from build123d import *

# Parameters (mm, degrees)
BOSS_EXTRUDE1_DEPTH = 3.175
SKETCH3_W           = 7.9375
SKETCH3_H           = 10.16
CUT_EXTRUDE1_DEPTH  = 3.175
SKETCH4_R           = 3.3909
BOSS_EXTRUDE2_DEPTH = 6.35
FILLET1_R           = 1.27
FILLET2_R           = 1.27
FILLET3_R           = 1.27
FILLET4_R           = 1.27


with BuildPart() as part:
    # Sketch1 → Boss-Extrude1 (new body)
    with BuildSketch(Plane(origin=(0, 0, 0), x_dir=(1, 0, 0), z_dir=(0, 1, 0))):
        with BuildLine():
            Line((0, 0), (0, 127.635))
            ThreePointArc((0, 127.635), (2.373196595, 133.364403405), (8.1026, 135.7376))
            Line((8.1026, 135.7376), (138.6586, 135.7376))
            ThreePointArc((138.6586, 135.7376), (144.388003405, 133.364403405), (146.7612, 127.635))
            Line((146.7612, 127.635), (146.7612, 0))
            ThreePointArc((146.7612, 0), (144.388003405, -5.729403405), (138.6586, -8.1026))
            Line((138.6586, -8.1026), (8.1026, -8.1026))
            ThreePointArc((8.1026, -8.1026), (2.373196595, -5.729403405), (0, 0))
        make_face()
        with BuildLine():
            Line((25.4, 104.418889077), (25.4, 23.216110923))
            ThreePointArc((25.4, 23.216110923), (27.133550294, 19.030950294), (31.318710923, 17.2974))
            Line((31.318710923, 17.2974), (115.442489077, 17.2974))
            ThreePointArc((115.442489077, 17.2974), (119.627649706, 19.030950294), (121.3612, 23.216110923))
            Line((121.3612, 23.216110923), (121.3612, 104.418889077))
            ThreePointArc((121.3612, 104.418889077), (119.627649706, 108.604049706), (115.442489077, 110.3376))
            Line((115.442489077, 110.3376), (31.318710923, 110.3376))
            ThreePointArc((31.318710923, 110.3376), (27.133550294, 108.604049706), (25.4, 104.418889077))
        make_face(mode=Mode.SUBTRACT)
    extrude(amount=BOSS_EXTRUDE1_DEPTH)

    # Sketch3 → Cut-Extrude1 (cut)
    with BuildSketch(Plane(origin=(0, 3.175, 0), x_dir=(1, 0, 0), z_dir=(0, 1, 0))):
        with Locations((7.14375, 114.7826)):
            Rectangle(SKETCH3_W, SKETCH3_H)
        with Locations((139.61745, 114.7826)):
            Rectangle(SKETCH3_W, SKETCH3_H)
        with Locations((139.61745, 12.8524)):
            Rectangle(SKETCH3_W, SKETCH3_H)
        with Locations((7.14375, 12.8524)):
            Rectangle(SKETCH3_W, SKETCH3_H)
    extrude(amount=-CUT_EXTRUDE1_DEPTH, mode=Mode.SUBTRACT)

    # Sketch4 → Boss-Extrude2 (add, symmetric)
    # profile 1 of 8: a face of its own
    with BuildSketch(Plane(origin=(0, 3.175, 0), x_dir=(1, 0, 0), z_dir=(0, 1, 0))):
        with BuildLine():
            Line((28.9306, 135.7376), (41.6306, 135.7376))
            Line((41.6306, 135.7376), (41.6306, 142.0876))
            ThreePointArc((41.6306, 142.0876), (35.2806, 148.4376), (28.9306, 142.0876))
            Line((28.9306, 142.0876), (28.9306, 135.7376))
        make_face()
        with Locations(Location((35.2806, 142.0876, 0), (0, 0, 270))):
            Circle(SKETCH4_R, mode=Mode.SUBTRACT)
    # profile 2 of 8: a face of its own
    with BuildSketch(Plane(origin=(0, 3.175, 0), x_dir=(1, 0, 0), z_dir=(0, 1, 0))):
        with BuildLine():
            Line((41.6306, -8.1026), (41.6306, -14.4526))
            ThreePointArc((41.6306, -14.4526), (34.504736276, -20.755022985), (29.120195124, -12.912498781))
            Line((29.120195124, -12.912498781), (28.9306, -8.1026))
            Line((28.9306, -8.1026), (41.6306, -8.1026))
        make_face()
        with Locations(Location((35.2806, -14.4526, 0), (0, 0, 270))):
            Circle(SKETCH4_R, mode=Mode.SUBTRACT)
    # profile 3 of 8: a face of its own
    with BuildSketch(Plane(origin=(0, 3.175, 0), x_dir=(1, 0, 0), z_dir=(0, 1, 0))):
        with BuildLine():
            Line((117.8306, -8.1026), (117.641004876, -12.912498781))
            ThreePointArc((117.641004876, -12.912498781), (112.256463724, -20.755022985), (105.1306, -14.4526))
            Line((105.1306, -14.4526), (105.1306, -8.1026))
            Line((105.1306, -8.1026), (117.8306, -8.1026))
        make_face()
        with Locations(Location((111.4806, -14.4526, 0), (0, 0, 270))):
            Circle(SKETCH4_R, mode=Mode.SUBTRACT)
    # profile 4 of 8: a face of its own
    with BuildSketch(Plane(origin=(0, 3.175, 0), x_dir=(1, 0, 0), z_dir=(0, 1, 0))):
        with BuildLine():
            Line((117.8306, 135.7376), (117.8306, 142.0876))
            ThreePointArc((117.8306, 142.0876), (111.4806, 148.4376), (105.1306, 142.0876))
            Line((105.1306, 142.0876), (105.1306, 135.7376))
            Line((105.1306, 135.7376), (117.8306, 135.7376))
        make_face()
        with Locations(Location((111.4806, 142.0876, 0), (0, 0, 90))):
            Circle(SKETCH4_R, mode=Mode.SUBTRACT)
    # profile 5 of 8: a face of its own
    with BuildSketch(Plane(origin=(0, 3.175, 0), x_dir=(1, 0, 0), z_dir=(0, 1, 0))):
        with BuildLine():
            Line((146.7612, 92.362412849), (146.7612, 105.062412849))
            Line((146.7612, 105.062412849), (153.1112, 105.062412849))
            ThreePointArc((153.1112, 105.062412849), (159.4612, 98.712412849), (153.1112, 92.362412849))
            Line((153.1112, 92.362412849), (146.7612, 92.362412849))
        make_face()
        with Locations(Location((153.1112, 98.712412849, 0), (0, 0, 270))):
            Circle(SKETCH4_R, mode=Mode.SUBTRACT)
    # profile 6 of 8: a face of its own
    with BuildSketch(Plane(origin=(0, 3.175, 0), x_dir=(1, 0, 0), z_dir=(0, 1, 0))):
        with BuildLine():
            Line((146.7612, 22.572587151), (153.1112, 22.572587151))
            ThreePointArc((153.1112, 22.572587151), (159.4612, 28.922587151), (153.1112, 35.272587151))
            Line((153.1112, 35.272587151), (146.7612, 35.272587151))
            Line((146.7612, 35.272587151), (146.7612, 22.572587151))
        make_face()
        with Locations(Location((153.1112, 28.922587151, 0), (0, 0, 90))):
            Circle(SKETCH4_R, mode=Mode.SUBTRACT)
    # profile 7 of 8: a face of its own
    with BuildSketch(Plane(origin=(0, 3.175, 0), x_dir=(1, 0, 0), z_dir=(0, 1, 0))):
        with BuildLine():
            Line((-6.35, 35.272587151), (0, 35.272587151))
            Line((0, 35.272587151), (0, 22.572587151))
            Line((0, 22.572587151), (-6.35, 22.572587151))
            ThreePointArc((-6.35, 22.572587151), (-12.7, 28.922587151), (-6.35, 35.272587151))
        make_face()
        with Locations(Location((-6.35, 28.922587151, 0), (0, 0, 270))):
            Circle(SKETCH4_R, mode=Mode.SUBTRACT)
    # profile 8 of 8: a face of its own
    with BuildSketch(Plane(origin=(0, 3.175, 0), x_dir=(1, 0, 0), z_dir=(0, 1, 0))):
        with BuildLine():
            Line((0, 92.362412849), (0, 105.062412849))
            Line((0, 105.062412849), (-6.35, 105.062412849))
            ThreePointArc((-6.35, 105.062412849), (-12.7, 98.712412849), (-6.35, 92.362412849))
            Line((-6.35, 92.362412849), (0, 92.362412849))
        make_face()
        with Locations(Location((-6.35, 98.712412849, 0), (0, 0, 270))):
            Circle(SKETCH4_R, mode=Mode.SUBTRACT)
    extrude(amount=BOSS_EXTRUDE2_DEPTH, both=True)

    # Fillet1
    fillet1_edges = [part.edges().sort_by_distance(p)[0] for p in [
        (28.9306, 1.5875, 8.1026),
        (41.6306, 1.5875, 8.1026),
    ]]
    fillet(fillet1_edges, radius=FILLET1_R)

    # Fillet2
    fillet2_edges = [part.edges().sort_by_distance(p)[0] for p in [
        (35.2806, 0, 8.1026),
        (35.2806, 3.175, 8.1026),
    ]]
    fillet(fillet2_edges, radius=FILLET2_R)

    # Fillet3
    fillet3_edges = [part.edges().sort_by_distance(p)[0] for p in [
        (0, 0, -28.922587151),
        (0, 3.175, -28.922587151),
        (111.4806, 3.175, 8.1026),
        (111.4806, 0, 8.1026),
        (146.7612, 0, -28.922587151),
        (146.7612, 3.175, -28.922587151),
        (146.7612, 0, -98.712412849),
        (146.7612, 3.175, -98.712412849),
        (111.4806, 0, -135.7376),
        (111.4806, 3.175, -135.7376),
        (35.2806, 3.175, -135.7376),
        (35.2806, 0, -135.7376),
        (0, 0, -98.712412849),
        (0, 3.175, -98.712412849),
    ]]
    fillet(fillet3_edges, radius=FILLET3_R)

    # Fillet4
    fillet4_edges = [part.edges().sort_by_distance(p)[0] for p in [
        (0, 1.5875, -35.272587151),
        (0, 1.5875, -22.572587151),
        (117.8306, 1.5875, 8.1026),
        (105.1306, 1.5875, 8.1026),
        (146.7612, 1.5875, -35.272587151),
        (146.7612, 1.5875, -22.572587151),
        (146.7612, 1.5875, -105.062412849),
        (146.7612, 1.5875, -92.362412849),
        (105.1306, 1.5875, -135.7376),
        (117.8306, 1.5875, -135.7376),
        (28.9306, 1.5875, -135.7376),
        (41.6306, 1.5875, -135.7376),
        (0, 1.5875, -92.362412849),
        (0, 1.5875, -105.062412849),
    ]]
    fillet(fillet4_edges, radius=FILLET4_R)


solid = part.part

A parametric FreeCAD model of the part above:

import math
import FreeCAD as App
import Part
import Sketcher
from FreeCAD import Vector
Q = App.Units.Quantity


def edges_at(feature, points):
    """Names of the edges that pass closest to the given points."""
    edges = feature.Shape.Edges
    near = lambda p: min(range(len(edges)), key=lambda i: edges[i].distToShape(Part.Vertex(*p))[0])
    return sorted({f"Edge{near(p) + 1}" for p in points})

doc = App.newDocument("Part")
params = doc.addObject("Spreadsheet::Sheet", "Params")
for row, (alias, value) in enumerate([
    ("sketch1_radius", "0.319 in"),
    ("sketch1_width", "5.14 in"),
    ("sketch1_height", "5.025 in"),
    ("pad1_length", "0.125 in"),
    ("sketch2_height", "0.4 in"),
    ("sketch2_width", "0.3125 in"),
    ("pocket1_length", "0.125 in"),
    ("sketch3_radius", "0.25 in"),
    ("sketch3_diameter", "0.267 in"),
    ("sketch3_width", "0.25 in"),
    ("pad2_length", "0.5 in"),
    ("fillet_radius", "0.05 in"),
    ("fillet2_radius", "0.05 in"),
    ("fillet3_radius", "0.05 in"),
    ("fillet4_radius", "0.05 in"),
], start=1):
    params.set(f"A{row}", alias)
    params.set(f"B{row}", "=" + value)
    params.setAlias(f"B{row}", alias)

body = doc.addObject("PartDesign::Body", "Body")

# Sketch on XZ plane
sketch1 = doc.addObject("Sketcher::SketchObject", "Sketch")
body.addObject(sketch1)
sketch1.AttachmentSupport = (doc.XZ_Plane, [""])
sketch1.MapMode = "FlatFace"
sketch1.addGeometry([
    Part.LineSegment(Vector(0, -128, 0), Vector(0, 0, 0)),  # 0
    Part.ArcOfCircle(Part.Circle(Vector(8, 0, 0), Vector(0, 0, 1), 8), math.radians(90), math.radians(180)),  # 1
    Part.LineSegment(Vector(8, 8, 0), Vector(139, 8, 0)),  # 2
    Part.ArcOfCircle(Part.Circle(Vector(139, 0, 0), Vector(0, 0, 1), 8), math.radians(0), math.radians(90)),  # 3
    Part.LineSegment(Vector(147, 0, 0), Vector(147, -128, 0)),  # 4
    Part.ArcOfCircle(Part.Circle(Vector(139, -128, 0), Vector(0, 0, 1), 8), math.radians(-90), math.radians(0)),  # 5
    Part.LineSegment(Vector(139, -136, 0), Vector(8, -136, 0)),  # 6
    Part.ArcOfCircle(Part.Circle(Vector(8, -128, 0), Vector(0, 0, 1), 8), math.radians(-180), math.radians(-90)),  # 7
    Part.ArcOfCircle(Part.Circle(Vector(31, -104, 0), Vector(0, 0, 1), 6), math.radians(-180), math.radians(-90)),  # 8
    Part.LineSegment(Vector(31, -110, 0), Vector(115, -110, 0)),  # 9
    Part.ArcOfCircle(Part.Circle(Vector(115, -104, 0), Vector(0, 0, 1), 6), math.radians(-90), math.radians(0)),  # 10
    Part.LineSegment(Vector(121, -104, 0), Vector(121, -23, 0)),  # 11
    Part.ArcOfCircle(Part.Circle(Vector(115, -23, 0), Vector(0, 0, 1), 6), math.radians(0), math.radians(90)),  # 12
    Part.LineSegment(Vector(115, -17, 0), Vector(31, -17, 0)),  # 13
    Part.ArcOfCircle(Part.Circle(Vector(31, -23, 0), Vector(0, 0, 1), 6), math.radians(90), math.radians(180)),  # 14
    Part.LineSegment(Vector(25, -23, 0), Vector(25, -104, 0)),  # 15
], False)
sketch1.addConstraint([
    Sketcher.Constraint("Tangent", 0, 2, 1, 2),
    Sketcher.Constraint("Tangent", 1, 1, 2, 1),
    Sketcher.Constraint("Tangent", 2, 2, 3, 2),
    Sketcher.Constraint("Tangent", 3, 1, 4, 1),
    Sketcher.Constraint("Tangent", 4, 2, 5, 2),
    Sketcher.Constraint("Tangent", 5, 1, 6, 1),
    Sketcher.Constraint("Tangent", 6, 2, 7, 2),
    Sketcher.Constraint("Tangent", 7, 1, 0, 1),
    Sketcher.Constraint("Tangent", 8, 2, 9, 1),
    Sketcher.Constraint("Tangent", 9, 2, 10, 1),
    Sketcher.Constraint("Tangent", 10, 2, 11, 1),
    Sketcher.Constraint("Tangent", 11, 2, 12, 1),
    Sketcher.Constraint("Tangent", 12, 2, 13, 1),
    Sketcher.Constraint("Tangent", 13, 2, 14, 1),
    Sketcher.Constraint("Tangent", 14, 2, 15, 1),
    Sketcher.Constraint("Tangent", 15, 2, 8, 1),
    Sketcher.Constraint("Vertical", 0),
    Sketcher.Constraint("Horizontal", 2),
    Sketcher.Constraint("Vertical", 4),
    Sketcher.Constraint("Horizontal", 6),
    Sketcher.Constraint("Horizontal", 9),
    Sketcher.Constraint("Vertical", 11),
    Sketcher.Constraint("Horizontal", 13),
    Sketcher.Constraint("Vertical", 15),
    Sketcher.Constraint("Coincident", 0, 2, -1, 1),
    Sketcher.Constraint("Equal", 1, 3),
    Sketcher.Constraint("Equal", 3, 5),
    Sketcher.Constraint("Equal", 5, 7),
    Sketcher.Constraint("Equal", 8, 10),
    Sketcher.Constraint("Equal", 10, 12),
    Sketcher.Constraint("Equal", 12, 14),
    Sketcher.Constraint("DistanceX", -1, 1, 14, 2, Q("1 in")),
    Sketcher.Constraint("Radius", 1, Q("0.319 in")),
    Sketcher.Constraint("DistanceY", 6, 2, 8, 2, Q("1 in")),
    Sketcher.Constraint("DistanceX", 10, 2, 4, 2, Q("1 in")),
    Sketcher.Constraint("DistanceY", 12, 2, 2, 2, Q("1 in")),
    Sketcher.Constraint("DistanceX", 2, 1, 2, 2, Q("5.14 in")),
    Sketcher.Constraint("DistanceY", 0, 1, 0, 2, Q("5.025 in")),
    Sketcher.Constraint("Radius", 8, 5.918711),
])
sketch1.setExpression("Constraints[32]", "Params.sketch1_radius")
sketch1.setExpression("Constraints[36]", "Params.sketch1_width")
sketch1.setExpression("Constraints[37]", "Params.sketch1_height")
pad1 = doc.addObject("PartDesign::Pad", "Pad")
body.addObject(pad1)
pad1.Profile = sketch1
pad1.setExpression("Length", "Params.pad1_length")
pad1.Reversed = True

# Sketch on XZ plane
sketch2 = doc.addObject("Sketcher::SketchObject", "Sketch001")
body.addObject(sketch2)
sketch2.AttachmentSupport = (doc.XZ_Plane, [""])
sketch2.MapMode = "FlatFace"
sketch2.AttachmentOffset = App.Placement(Vector(0, 0, -0.125 * 25.4), App.Rotation())
sketch2.addGeometry([
    Part.LineSegment(Vector(3, -120, 0), Vector(3, -110, 0)),  # 0
    Part.LineSegment(Vector(3, -110, 0), Vector(11, -110, 0)),  # 1
    Part.LineSegment(Vector(11, -110, 0), Vector(11, -120, 0)),  # 2
    Part.LineSegment(Vector(11, -120, 0), Vector(3, -120, 0)),  # 3
    Part.LineSegment(Vector(136, -120, 0), Vector(136, -110, 0)),  # 4
    Part.LineSegment(Vector(136, -110, 0), Vector(144, -110, 0)),  # 5
    Part.LineSegment(Vector(144, -110, 0), Vector(144, -120, 0)),  # 6
    Part.LineSegment(Vector(144, -120, 0), Vector(136, -120, 0)),  # 7
    Part.LineSegment(Vector(136, -18, 0), Vector(136, -8, 0)),  # 8
    Part.LineSegment(Vector(136, -8, 0), Vector(144, -8, 0)),  # 9
    Part.LineSegment(Vector(144, -8, 0), Vector(144, -18, 0)),  # 10
    Part.LineSegment(Vector(144, -18, 0), Vector(136, -18, 0)),  # 11
    Part.LineSegment(Vector(3, -18, 0), Vector(3, -8, 0)),  # 12
    Part.LineSegment(Vector(3, -8, 0), Vector(11, -8, 0)),  # 13
    Part.LineSegment(Vector(11, -8, 0), Vector(11, -18, 0)),  # 14
    Part.LineSegment(Vector(11, -18, 0), Vector(3, -18, 0)),  # 15
], False)
sketch2.addConstraint([
    Sketcher.Constraint("Coincident", 0, 2, 1, 1),
    Sketcher.Constraint("Coincident", 1, 2, 2, 1),
    Sketcher.Constraint("Coincident", 2, 2, 3, 1),
    Sketcher.Constraint("Coincident", 3, 2, 0, 1),
    Sketcher.Constraint("Coincident", 4, 2, 5, 1),
    Sketcher.Constraint("Coincident", 5, 2, 6, 1),
    Sketcher.Constraint("Coincident", 6, 2, 7, 1),
    Sketcher.Constraint("Coincident", 7, 2, 4, 1),
    Sketcher.Constraint("Coincident", 8, 2, 9, 1),
    Sketcher.Constraint("Coincident", 9, 2, 10, 1),
    Sketcher.Constraint("Coincident", 10, 2, 11, 1),
    Sketcher.Constraint("Coincident", 11, 2, 8, 1),
    Sketcher.Constraint("Coincident", 12, 2, 13, 1),
    Sketcher.Constraint("Coincident", 13, 2, 14, 1),
    Sketcher.Constraint("Coincident", 14, 2, 15, 1),
    Sketcher.Constraint("Coincident", 15, 2, 12, 1),
    Sketcher.Constraint("Vertical", 0),
    Sketcher.Constraint("Horizontal", 1),
    Sketcher.Constraint("Vertical", 2),
    Sketcher.Constraint("Horizontal", 3),
    Sketcher.Constraint("Vertical", 4),
    Sketcher.Constraint("Horizontal", 5),
    Sketcher.Constraint("Vertical", 6),
    Sketcher.Constraint("Horizontal", 7),
    Sketcher.Constraint("Vertical", 8),
    Sketcher.Constraint("Horizontal", 9),
    Sketcher.Constraint("Vertical", 10),
    Sketcher.Constraint("Horizontal", 11),
    Sketcher.Constraint("Vertical", 12),
    Sketcher.Constraint("Horizontal", 13),
    Sketcher.Constraint("Vertical", 14),
    Sketcher.Constraint("Horizontal", 15),
    Sketcher.Constraint("Horizontal", 1, 2, 4, 2),
    Sketcher.Constraint("Horizontal", 3, 2, 6, 2),
    Sketcher.Constraint("Horizontal", 9, 2, 12, 2),
    Sketcher.Constraint("Horizontal", 11, 2, 14, 2),
    Sketcher.Constraint("Vertical", 7, 2, 8, 2),
    Sketcher.Constraint("Vertical", 6, 2, 9, 2),
    Sketcher.Constraint("Vertical", 3, 2, 12, 2),
    Sketcher.Constraint("Vertical", 2, 2, 13, 2),
    Sketcher.Constraint("Equal", 3, 5),
    Sketcher.Constraint("Equal", 6, 8),
    Sketcher.Constraint("DistanceY", 0, 1, 0, 2, Q("0.4 in")),
    Sketcher.Constraint("DistanceX", 1, 1, 1, 2, Q("0.3125 in")),
    Sketcher.Constraint("DistanceX", -1, 1, 0, 2, Q("0.125 in")),
    Sketcher.Constraint("DistanceY", 0, 2, -1, 1, Q("4.319 in")),
    Sketcher.Constraint("DistanceX", -1, 1, 5, 2, Q("5.653 in")),
    Sketcher.Constraint("DistanceY", 8, 2, -1, 1, Q("0.306 in")),
])
sketch2.setExpression("Constraints[42]", "Params.sketch2_height")
sketch2.setExpression("Constraints[43]", "Params.sketch2_width")
pocket1 = doc.addObject("PartDesign::Pocket", "Pocket")
body.addObject(pocket1)
pocket1.Profile = sketch2
pocket1.setExpression("Length", "Params.pocket1_length")
pocket1.Reversed = True

# Sketch on XZ plane
sketch3 = doc.addObject("Sketcher::SketchObject", "Sketch002")
body.addObject(sketch3)
sketch3.AttachmentSupport = (doc.XZ_Plane, [""])
sketch3.MapMode = "FlatFace"
sketch3.AttachmentOffset = App.Placement(Vector(0, 0, -0.125 * 25.4), App.Rotation())
sketch3.addGeometry([
    Part.LineSegment(Vector(28.9, -135.7, 0), Vector(41.6, -135.7, 0)),  # 0
    Part.LineSegment(Vector(41.6, -135.7, 0), Vector(41.6, -142.1, 0)),  # 1
    Part.ArcOfCircle(Part.Circle(Vector(35.3, -142.1, 0), Vector(0, 0, 1), 6.3), math.radians(180), math.radians(360)),  # 2
    Part.LineSegment(Vector(28.9, -142.1, 0), Vector(28.9, -135.7, 0)),  # 3
    Part.Circle(Vector(35.3, -142.1, 0), Vector(0, 0, 1), 3.4),  # 4
    Part.LineSegment(Vector(41.6, 14.5, 0), Vector(41.6, 8.1, 0)),  # 5
    Part.LineSegment(Vector(41.6, 8.1, 0), Vector(28.9, 8.1, 0)),  # 6
    Part.LineSegment(Vector(28.9, 8.1, 0), Vector(29.1, 12.9, 0)),  # 7
    Part.ArcOfCircle(Part.Circle(Vector(35.3, 14.5, 0), Vector(0, 0, 1), 6.3), math.radians(0), math.radians(194)),  # 8
    Part.Circle(Vector(35.3, 14.5, 0), Vector(0, 0, 1), 3.4),  # 9
    Part.LineSegment(Vector(117.6, 12.9, 0), Vector(117.8, 8.1, 0)),  # 10
    Part.LineSegment(Vector(117.8, 8.1, 0), Vector(105.1, 8.1, 0)),  # 11
    Part.LineSegment(Vector(105.1, 8.1, 0), Vector(105.1, 14.5, 0)),  # 12
    Part.ArcOfCircle(Part.Circle(Vector(111.5, 14.5, 0), Vector(0, 0, 1), 6.3), math.radians(-14), math.radians(180)),  # 13
    Part.Circle(Vector(111.5, 14.5, 0), Vector(0, 0, 1), 3.4),  # 14
    Part.LineSegment(Vector(117.8, -135.7, 0), Vector(117.8, -142.1, 0)),  # 15
    Part.ArcOfCircle(Part.Circle(Vector(111.5, -142.1, 0), Vector(0, 0, 1), 6.3), math.radians(180), math.radians(360)),  # 16
    Part.LineSegment(Vector(105.1, -142.1, 0), Vector(105.1, -135.7, 0)),  # 17
    Part.LineSegment(Vector(105.1, -135.7, 0), Vector(117.8, -135.7, 0)),  # 18
    Part.Circle(Vector(111.5, -142.1, 0), Vector(0, 0, 1), 3.4),  # 19
    Part.LineSegment(Vector(146.8, -105.1, 0), Vector(146.8, -92.4, 0)),  # 20
    Part.LineSegment(Vector(146.8, -92.4, 0), Vector(153.1, -92.4, 0)),  # 21
    Part.ArcOfCircle(Part.Circle(Vector(153.1, -98.7, 0), Vector(0, 0, 1), 6.3), math.radians(-90), math.radians(90)),  # 22
    Part.LineSegment(Vector(153.1, -105.1, 0), Vector(146.8, -105.1, 0)),  # 23
    Part.Circle(Vector(153.1, -98.7, 0), Vector(0, 0, 1), 3.4),  # 24
    Part.LineSegment(Vector(146.8, -22.6, 0), Vector(153.1, -22.6, 0)),  # 25
    Part.ArcOfCircle(Part.Circle(Vector(153.1, -28.9, 0), Vector(0, 0, 1), 6.3), math.radians(-90), math.radians(90)),  # 26
    Part.LineSegment(Vector(153.1, -35.3, 0), Vector(146.8, -35.3, 0)),  # 27
    Part.LineSegment(Vector(146.8, -35.3, 0), Vector(146.8, -22.6, 0)),  # 28
    Part.Circle(Vector(153.1, -28.9, 0), Vector(0, 0, 1), 3.4),  # 29
    Part.LineSegment(Vector(0, -35.3, 0), Vector(-6.3, -35.3, 0)),  # 30
    Part.ArcOfCircle(Part.Circle(Vector(-6.3, -28.9, 0), Vector(0, 0, 1), 6.3), math.radians(90), math.radians(270)),  # 31
    Part.LineSegment(Vector(-6.3, -22.6, 0), Vector(0, -22.6, 0)),  # 32
    Part.LineSegment(Vector(0, -22.6, 0), Vector(0, -35.3, 0)),  # 33
    Part.Circle(Vector(-6.3, -28.9, 0), Vector(0, 0, 1), 3.4),  # 34
    Part.LineSegment(Vector(0, -92.4, 0), Vector(0, -105.1, 0)),  # 35
    Part.LineSegment(Vector(0, -105.1, 0), Vector(-6.3, -105.1, 0)),  # 36
    Part.ArcOfCircle(Part.Circle(Vector(-6.3, -98.7, 0), Vector(0, 0, 1), 6.3), math.radians(90), math.radians(270)),  # 37
    Part.LineSegment(Vector(-6.3, -92.4, 0), Vector(0, -92.4, 0)),  # 38
    Part.Circle(Vector(-6.3, -98.7, 0), Vector(0, 0, 1), 3.4),  # 39
], False)
sketch3.addConstraint([
    Sketcher.Constraint("Coincident", 0, 2, 1, 1),
    Sketcher.Constraint("Tangent", 1, 2, 2, 2),
    Sketcher.Constraint("Tangent", 2, 1, 3, 1),
    Sketcher.Constraint("Coincident", 3, 2, 0, 1),
    Sketcher.Constraint("Coincident", 5, 2, 6, 1),
    Sketcher.Constraint("Coincident", 6, 2, 7, 1),
    Sketcher.Constraint("Coincident", 7, 2, 8, 2),
    Sketcher.Constraint("Tangent", 8, 1, 5, 1),
    Sketcher.Constraint("Coincident", 10, 2, 11, 1),
    Sketcher.Constraint("Coincident", 11, 2, 12, 1),
    Sketcher.Constraint("Tangent", 12, 2, 13, 2),
    Sketcher.Constraint("Coincident", 13, 1, 10, 1),
    Sketcher.Constraint("Tangent", 15, 2, 16, 2),
    Sketcher.Constraint("Tangent", 16, 1, 17, 1),
    Sketcher.Constraint("Coincident", 17, 2, 18, 1),
    Sketcher.Constraint("Coincident", 18, 2, 15, 1),
    Sketcher.Constraint("Coincident", 20, 2, 21, 1),
    Sketcher.Constraint("Tangent", 21, 2, 22, 2),
    Sketcher.Constraint("Tangent", 22, 1, 23, 1),
    Sketcher.Constraint("Coincident", 23, 2, 20, 1),
    Sketcher.Constraint("Tangent", 25, 2, 26, 2),
    Sketcher.Constraint("Tangent", 26, 1, 27, 1),
    Sketcher.Constraint("Coincident", 27, 2, 28, 1),
    Sketcher.Constraint("Coincident", 28, 2, 25, 1),
    Sketcher.Constraint("Tangent", 30, 2, 31, 2),
    Sketcher.Constraint("Tangent", 31, 1, 32, 1),
    Sketcher.Constraint("Coincident", 32, 2, 33, 1),
    Sketcher.Constraint("Coincident", 33, 2, 30, 1),
    Sketcher.Constraint("Coincident", 35, 2, 36, 1),
    Sketcher.Constraint("Tangent", 36, 2, 37, 2),
    Sketcher.Constraint("Tangent", 37, 1, 38, 1),
    Sketcher.Constraint("Coincident", 38, 2, 35, 1),
    Sketcher.Constraint("Horizontal", 0),
    Sketcher.Constraint("Vertical", 1),
    Sketcher.Constraint("Vertical", 3),
    Sketcher.Constraint("Vertical", 5),
    Sketcher.Constraint("Horizontal", 6),
    Sketcher.Constraint("Horizontal", 11),
    Sketcher.Constraint("Vertical", 12),
    Sketcher.Constraint("Vertical", 15),
    Sketcher.Constraint("Vertical", 17),
    Sketcher.Constraint("Horizontal", 18),
    Sketcher.Constraint("Vertical", 20),
    Sketcher.Constraint("Horizontal", 21),
    Sketcher.Constraint("Horizontal", 23),
    Sketcher.Constraint("Horizontal", 25),
    Sketcher.Constraint("Horizontal", 27),
    Sketcher.Constraint("Vertical", 28),
    Sketcher.Constraint("Horizontal", 30),
    Sketcher.Constraint("Horizontal", 32),
    Sketcher.Constraint("Vertical", 33),
    Sketcher.Constraint("Vertical", 35),
    Sketcher.Constraint("Horizontal", 36),
    Sketcher.Constraint("Horizontal", 38),
    Sketcher.Constraint("Coincident", 4, 3, 2, 3),
    Sketcher.Constraint("Coincident", 9, 3, 8, 3),
    Sketcher.Constraint("Coincident", 14, 3, 13, 3),
    Sketcher.Constraint("Coincident", 19, 3, 16, 3),
    Sketcher.Constraint("Coincident", 24, 3, 22, 3),
    Sketcher.Constraint("Coincident", 29, 3, 26, 3),
    Sketcher.Constraint("Coincident", 34, 3, 31, 3),
    Sketcher.Constraint("Coincident", 39, 3, 37, 3),
    Sketcher.Constraint("Equal", 2, 8),
    Sketcher.Constraint("Equal", 4, 9),
    Sketcher.Constraint("Equal", 8, 13),
    Sketcher.Constraint("Equal", 9, 14),
    Sketcher.Constraint("Equal", 13, 16),
    Sketcher.Constraint("Equal", 14, 19),
    Sketcher.Constraint("Equal", 16, 22),
    Sketcher.Constraint("Equal", 19, 24),
    Sketcher.Constraint("Equal", 22, 26),
    Sketcher.Constraint("Equal", 24, 29),
    Sketcher.Constraint("Equal", 26, 31),
    Sketcher.Constraint("Equal", 29, 34),
    Sketcher.Constraint("Equal", 31, 37),
    Sketcher.Constraint("Equal", 34, 39),
    Sketcher.Constraint("PointOnObject", 32, 2, -2),
    Sketcher.Constraint("PointOnObject", 35, 2, -2),
    Sketcher.Constraint("Horizontal", 9, 3, 13, 3),
    Sketcher.Constraint("Horizontal", 4, 3, 16, 3),
    Sketcher.Constraint("Horizontal", 29, 3, 31, 3),
    Sketcher.Constraint("Horizontal", 24, 3, 37, 3),
    Sketcher.Constraint("Horizontal", 6, 2, 10, 2),
    Sketcher.Constraint("Horizontal", 7, 2, 13, 1),
    Sketcher.Constraint("Horizontal", 3, 2, 17, 2),
    Sketcher.Constraint("Vertical", 4, 3, 8, 3),
    Sketcher.Constraint("Vertical", 14, 3, 16, 3),
    Sketcher.Constraint("Vertical", 24, 3, 26, 3),
    Sketcher.Constraint("Vertical", 34, 3, 37, 3),
    Sketcher.Constraint("Vertical", 3, 2, 6, 2),
    Sketcher.Constraint("Vertical", 10, 2, 15, 2),
    Sketcher.Constraint("Vertical", 23, 2, 27, 2),
    Sketcher.Constraint("Equal", 27, 30),
    Sketcher.Constraint("Equal", 38, 1),
    Sketcher.Constraint("Equal", 3, 5),
    Sketcher.Constraint("Radius", 2, Q("0.25 in")),
    Sketcher.Constraint("Diameter", 4, Q("0.267 in")),
    Sketcher.Constraint("DistanceX", 8, 3, 13, 3, Q("3 in")),
    Sketcher.Constraint("DistanceX", 21, 1, 21, 2, Q("0.25 in")),
    Sketcher.Constraint("DistanceX", -1, 1, 2, 3, Q("1.389 in")),
    Sketcher.Constraint("DistanceY", 2, 3, -1, 1, Q("5.594 in")),
    Sketcher.Constraint("DistanceY", -1, 1, 8, 3, Q("0.569 in")),
    Sketcher.Constraint("DistanceX", -1, 1, 22, 3, Q("6.028 in")),
    Sketcher.Constraint("DistanceY", -1, 1, 7, 2, 12.912499),
    Sketcher.Constraint("DistanceY", 22, 3, -1, 1, 98.712413),
    Sketcher.Constraint("DistanceY", 26, 3, -1, 1, 28.922587),
])
sketch3.setExpression("Constraints[95]", "Params.sketch3_radius")
sketch3.setExpression("Constraints[96]", "Params.sketch3_diameter")
sketch3.setExpression("Constraints[98]", "Params.sketch3_width")
pad2 = doc.addObject("PartDesign::Pad", "Pad001")
body.addObject(pad2)
pad2.Profile = sketch3
pad2.setExpression("Length", "Params.pad2_length")
pad2.Midplane = True
doc.recompute()

fillet = doc.addObject("PartDesign::Fillet", "Fillet")
body.addObject(fillet)
fillet.Base = (pad2, edges_at(pad2, [(28.931, 1.587, 8.103), (41.631, 1.587, 8.103)]))
fillet.setExpression("Radius", "Params.fillet_radius")
doc.recompute()

fillet2 = doc.addObject("PartDesign::Fillet", "Fillet001")
body.addObject(fillet2)
fillet2.Base = (fillet, edges_at(fillet, [(35.281, 0, 8.103), (35.281, 3.175, 8.103)]))
fillet2.setExpression("Radius", "Params.fillet2_radius")
doc.recompute()

fillet3 = doc.addObject("PartDesign::Fillet", "Fillet002")
body.addObject(fillet3)
fillet3.Base = (fillet2, edges_at(fillet2, [
    (0, 0, -28.923),
    (0, 3.175, -28.923),
    (111.481, 3.175, 8.103),
    (111.481, 0, 8.103),
    (146.761, 0, -28.923),
    (146.761, 3.175, -28.923),
    (146.761, 0, -98.712),
    (146.761, 3.175, -98.712),
    (111.481, 0, -135.738),
    (111.481, 3.175, -135.738),
    (35.281, 3.175, -135.738),
    (35.281, 0, -135.738),
    (0, 0, -98.712),
    (0, 3.175, -98.712),
]))
fillet3.setExpression("Radius", "Params.fillet3_radius")
doc.recompute()

fillet4 = doc.addObject("PartDesign::Fillet", "Fillet003")
body.addObject(fillet4)
fillet4.Base = (fillet3, edges_at(fillet3, [
    (0, 1.587, -35.273),
    (0, 1.587, -22.573),
    (117.831, 1.587, 8.103),
    (105.131, 1.587, 8.103),
    (146.761, 1.587, -35.273),
    (146.761, 1.587, -22.573),
    (146.761, 1.587, -105.062),
    (146.761, 1.587, -92.362),
    (105.131, 1.587, -135.738),
    (117.831, 1.587, -135.738),
    (28.931, 1.587, -135.738),
    (41.631, 1.587, -135.738),
    (0, 1.587, -92.362),
    (0, 1.587, -105.062),
]))
fillet4.setExpression("Radius", "Params.fillet4_radius")

doc.recompute()
